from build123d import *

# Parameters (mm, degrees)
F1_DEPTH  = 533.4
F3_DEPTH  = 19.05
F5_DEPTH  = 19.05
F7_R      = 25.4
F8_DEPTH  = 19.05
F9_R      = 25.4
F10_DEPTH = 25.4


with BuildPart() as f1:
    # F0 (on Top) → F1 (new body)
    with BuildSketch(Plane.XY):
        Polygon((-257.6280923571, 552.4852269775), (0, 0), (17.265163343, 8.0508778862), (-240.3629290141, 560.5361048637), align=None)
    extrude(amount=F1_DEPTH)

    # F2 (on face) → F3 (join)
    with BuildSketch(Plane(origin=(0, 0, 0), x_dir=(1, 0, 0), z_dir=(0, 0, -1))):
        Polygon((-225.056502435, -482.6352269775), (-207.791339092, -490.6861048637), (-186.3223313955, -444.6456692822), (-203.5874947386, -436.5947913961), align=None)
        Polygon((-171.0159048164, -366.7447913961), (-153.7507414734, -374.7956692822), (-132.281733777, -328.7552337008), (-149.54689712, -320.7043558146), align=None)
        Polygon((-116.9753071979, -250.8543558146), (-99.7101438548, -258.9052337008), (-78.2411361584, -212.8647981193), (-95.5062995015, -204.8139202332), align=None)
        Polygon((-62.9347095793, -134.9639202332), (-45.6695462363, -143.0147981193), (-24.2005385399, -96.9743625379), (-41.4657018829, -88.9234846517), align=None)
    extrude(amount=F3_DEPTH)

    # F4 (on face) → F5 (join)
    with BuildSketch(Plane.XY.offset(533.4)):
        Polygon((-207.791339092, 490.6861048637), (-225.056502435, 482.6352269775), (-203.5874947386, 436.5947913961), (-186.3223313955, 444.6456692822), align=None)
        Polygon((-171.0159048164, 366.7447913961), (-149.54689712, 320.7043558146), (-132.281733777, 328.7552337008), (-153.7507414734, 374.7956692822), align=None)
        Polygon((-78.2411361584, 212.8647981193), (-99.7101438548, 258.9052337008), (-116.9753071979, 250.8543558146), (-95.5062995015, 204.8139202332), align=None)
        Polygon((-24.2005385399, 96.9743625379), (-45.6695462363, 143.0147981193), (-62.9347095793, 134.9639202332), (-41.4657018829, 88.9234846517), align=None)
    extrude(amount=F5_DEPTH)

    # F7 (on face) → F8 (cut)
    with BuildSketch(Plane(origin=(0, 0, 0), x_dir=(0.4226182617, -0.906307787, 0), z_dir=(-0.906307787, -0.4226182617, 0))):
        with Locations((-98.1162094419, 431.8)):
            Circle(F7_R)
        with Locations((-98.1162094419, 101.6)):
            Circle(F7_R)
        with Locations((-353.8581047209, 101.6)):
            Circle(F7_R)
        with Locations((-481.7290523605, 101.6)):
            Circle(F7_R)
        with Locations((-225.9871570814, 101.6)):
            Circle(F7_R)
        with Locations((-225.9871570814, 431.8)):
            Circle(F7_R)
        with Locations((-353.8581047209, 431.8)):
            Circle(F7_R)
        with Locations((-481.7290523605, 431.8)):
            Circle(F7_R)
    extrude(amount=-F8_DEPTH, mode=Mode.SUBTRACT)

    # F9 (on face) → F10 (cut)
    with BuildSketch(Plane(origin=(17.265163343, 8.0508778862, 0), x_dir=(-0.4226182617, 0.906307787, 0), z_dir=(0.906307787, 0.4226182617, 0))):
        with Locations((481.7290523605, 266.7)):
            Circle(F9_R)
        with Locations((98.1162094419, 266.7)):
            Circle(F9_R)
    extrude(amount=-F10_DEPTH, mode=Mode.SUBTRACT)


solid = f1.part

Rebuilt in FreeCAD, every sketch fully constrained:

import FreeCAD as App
import Part
import Sketcher

V = App.Vector
Q = App.Units.Quantity

doc = App.newDocument("Part")
body = doc.addObject("PartDesign::Body", "Body")

sketch1 = body.newObject("Sketcher::SketchObject", "Sketch")
sketch1.AttachmentSupport = (doc.getObject("XY_Plane"), [""])
sketch1.MapMode = "FlatFace"
sketch1.addGeometry([
    Part.LineSegment(V(-258, 552, 0), V(0, 0, 0)),
    Part.LineSegment(V(0, 0, 0), V(17, 8, 0)),
    Part.LineSegment(V(17, 8, 0), V(-240, 561, 0)),
    Part.LineSegment(V(-240, 561, 0), V(-258, 552, 0)),
], False)
sketch1.addConstraint([
    Sketcher.Constraint("Coincident", 0, 2, 1, 1),
    Sketcher.Constraint("Coincident", 1, 2, 2, 1),
    Sketcher.Constraint("Coincident", 2, 2, 3, 1),
    Sketcher.Constraint("Coincident", 3, 2, 0, 1),
    Sketcher.Constraint("Coincident", 0, 2, -1, 1),
    Sketcher.Constraint("Perpendicular", 0, 1),
    Sketcher.Constraint("Perpendicular", 1, 2),
    Sketcher.Constraint("Perpendicular", 2, 3),
    Sketcher.Constraint("Distance", 0, Q("24 in")),
    Sketcher.Constraint("Angle", 0, Q("-65 deg")),
    Sketcher.Constraint("Distance", 1, Q("0.75 in")),
])
pad1 = body.newObject("PartDesign::Pad", "Pad")
pad1.Profile = sketch1
pad1.Length = Q("21 in")

sketch2 = body.newObject("Sketcher::SketchObject", "Sketch001")
sketch2.AttachmentSupport = (doc.getObject("XY_Plane"), [""])
sketch2.MapMode = "FlatFace"
sketch2.addGeometry([
    Part.LineSegment(V(-225, 483, 0), V(-208, 491, 0)),
    Part.LineSegment(V(-208, 491, 0), V(-186, 445, 0)),
    Part.LineSegment(V(-186, 445, 0), V(-204, 437, 0)),
    Part.LineSegment(V(-204, 437, 0), V(-225, 483, 0)),
    Part.LineSegment(V(-171, 367, 0), V(-154, 375, 0)),
    Part.LineSegment(V(-154, 375, 0), V(-132, 329, 0)),
    Part.LineSegment(V(-132, 329, 0), V(-150, 321, 0)),
    Part.LineSegment(V(-150, 321, 0), V(-171, 367, 0)),
    Part.LineSegment(V(-117, 251, 0), V(-100, 259, 0)),
    Part.LineSegment(V(-100, 259, 0), V(-78, 213, 0)),
    Part.LineSegment(V(-78, 213, 0), V(-96, 205, 0)),
    Part.LineSegment(V(-96, 205, 0), V(-117, 251, 0)),
    Part.LineSegment(V(-63, 135, 0), V(-46, 143, 0)),
    Part.LineSegment(V(-46, 143, 0), V(-24, 97, 0)),
    Part.LineSegment(V(-24, 97, 0), V(-41, 89, 0)),
    Part.LineSegment(V(-41, 89, 0), V(-63, 135, 0)),
], False)
sketch2.addConstraint([
    Sketcher.Constraint("Coincident", 0, 2, 1, 1),
    Sketcher.Constraint("Coincident", 1, 2, 2, 1),
    Sketcher.Constraint("Coincident", 2, 2, 3, 1),
    Sketcher.Constraint("Coincident", 3, 2, 0, 1),
    Sketcher.Constraint("Coincident", 4, 2, 5, 1),
    Sketcher.Constraint("Coincident", 5, 2, 6, 1),
    Sketcher.Constraint("Coincident", 6, 2, 7, 1),
    Sketcher.Constraint("Coincident", 7, 2, 4, 1),
    Sketcher.Constraint("Coincident", 8, 2, 9, 1),
    Sketcher.Constraint("Coincident", 9, 2, 10, 1),
    Sketcher.Constraint("Coincident", 10, 2, 11, 1),
    Sketcher.Constraint("Coincident", 11, 2, 8, 1),
    Sketcher.Constraint("Coincident", 12, 2, 13, 1),
    Sketcher.Constraint("Coincident", 13, 2, 14, 1),
    Sketcher.Constraint("Coincident", 14, 2, 15, 1),
    Sketcher.Constraint("Coincident", 15, 2, 12, 1),
    Sketcher.Constraint("Perpendicular", 0, 1),
    Sketcher.Constraint("Perpendicular", 1, 2),
    Sketcher.Constraint("Perpendicular", 2, 3),
    Sketcher.Constraint("Perpendicular", 3, 4),
    Sketcher.Constraint("Perpendicular", 4, 5),
    Sketcher.Constraint("Perpendicular", 5, 6),
    Sketcher.Constraint("Perpendicular", 6, 7),
    Sketcher.Constraint("Perpendicular", 7, 8),
    Sketcher.Constraint("Perpendicular", 8, 9),
    Sketcher.Constraint("Perpendicular", 9, 10),
    Sketcher.Constraint("Perpendicular", 10, 11),
    Sketcher.Constraint("Perpendicular", 11, 12),
    Sketcher.Constraint("Perpendicular", 12, 13),
    Sketcher.Constraint("Perpendicular", 13, 14),
    Sketcher.Constraint("Perpendicular", 14, 15),
    Sketcher.Constraint("Equal", 2, 4),
    Sketcher.Constraint("Equal", 3, 5),
    Sketcher.Constraint("Equal", 6, 8),
    Sketcher.Constraint("Equal", 7, 9),
    Sketcher.Constraint("Equal", 10, 12),
    Sketcher.Constraint("Equal", 11, 13),
    Sketcher.Constraint("Distance", 1, Q("2 in")),
    Sketcher.Constraint("Angle", 0, Q("25 deg")),
    Sketcher.Constraint("Distance", 0, Q("0.75 in")),
    Sketcher.Constraint("DistanceY", 4, 2, 1, 2, Q("2.75 in")),
    Sketcher.Constraint("DistanceY", 8, 2, 5, 2, Q("2.75 in")),
    Sketcher.Constraint("DistanceY", 12, 2, 9, 2, Q("2.75 in")),
    Sketcher.Constraint("DistanceY", -1, 1, 9, 2, Q("212.864798 mm")),
    Sketcher.Constraint("DistanceX", 10, 2, -1, 1, Q("95.5063 mm")),
    Sketcher.Constraint("DistanceX", 14, 2, -1, 1, Q("41.465702 mm")),
    Sketcher.Constraint("DistanceX", 0, 2, -1, 1, Q("207.791339 mm")),
    Sketcher.Constraint("DistanceX", 4, 2, -1, 1, Q("153.750741 mm")),
])
pad2 = body.newObject("PartDesign::Pad", "Pad001")
pad2.Profile = sketch2
pad2.Length = Q("0.75 in")
pad2.Reversed = True

sketch3 = body.newObject("Sketcher::SketchObject", "Sketch002")
sketch3.AttachmentSupport = (doc.getObject("XY_Plane"), [""])
sketch3.MapMode = "FlatFace"
sketch3.AttachmentOffset = App.Placement(V(0, 0, 21 * 25.4), App.Rotation())
sketch3.addGeometry([
    Part.LineSegment(V(-208, 491, 0), V(-225, 483, 0)),
    Part.LineSegment(V(-225, 483, 0), V(-204, 437, 0)),
    Part.LineSegment(V(-204, 437, 0), V(-186, 445, 0)),
    Part.LineSegment(V(-186, 445, 0), V(-208, 491, 0)),
    Part.LineSegment(V(-171, 367, 0), V(-150, 321, 0)),
    Part.LineSegment(V(-150, 321, 0), V(-132, 329, 0)),
    Part.LineSegment(V(-132, 329, 0), V(-154, 375, 0)),
    Part.LineSegment(V(-154, 375, 0), V(-171, 367, 0)),
    Part.LineSegment(V(-78, 213, 0), V(-100, 259, 0)),
    Part.LineSegment(V(-100, 259, 0), V(-117, 251, 0)),
    Part.LineSegment(V(-117, 251, 0), V(-96, 205, 0)),
    Part.LineSegment(V(-96, 205, 0), V(-78, 213, 0)),
    Part.LineSegment(V(-24, 97, 0), V(-46, 143, 0)),
    Part.LineSegment(V(-46, 143, 0), V(-63, 135, 0)),
    Part.LineSegment(V(-63, 135, 0), V(-41, 89, 0)),
    Part.LineSegment(V(-41, 89, 0), V(-24, 97, 0)),
], False)
sketch3.addConstraint([
    Sketcher.Constraint("Coincident", 0, 2, 1, 1),
    Sketcher.Constraint("Coincident", 1, 2, 2, 1),
    Sketcher.Constraint("Coincident", 2, 2, 3, 1),
    Sketcher.Constraint("Coincident", 3, 2, 0, 1),
    Sketcher.Constraint("Coincident", 4, 2, 5, 1),
    Sketcher.Constraint("Coincident", 5, 2, 6, 1),
    Sketcher.Constraint("Coincident", 6, 2, 7, 1),
    Sketcher.Constraint("Coincident", 7, 2, 4, 1),
    Sketcher.Constraint("Coincident", 8, 2, 9, 1),
    Sketcher.Constraint("Coincident", 9, 2, 10, 1),
    Sketcher.Constraint("Coincident", 10, 2, 11, 1),
    Sketcher.Constraint("Coincident", 11, 2, 8, 1),
    Sketcher.Constraint("Coincident", 12, 2, 13, 1),
    Sketcher.Constraint("Coincident", 13, 2, 14, 1),
    Sketcher.Constraint("Coincident", 14, 2, 15, 1),
    Sketcher.Constraint("Coincident", 15, 2, 12, 1),
    Sketcher.Constraint("Perpendicular", 0, 1),
    Sketcher.Constraint("Perpendicular", 1, 2),
    Sketcher.Constraint("Perpendicular", 2, 3),
    Sketcher.Constraint("Parallel", 3, 4),
    Sketcher.Constraint("Perpendicular", 4, 5),
    Sketcher.Constraint("Perpendicular", 5, 6),
    Sketcher.Constraint("Perpendicular", 6, 7),
    Sketcher.Constraint("Perpendicular", 7, 8),
    Sketcher.Constraint("Perpendicular", 8, 9),
    Sketcher.Constraint("Perpendicular", 9, 10),
    Sketcher.Constraint("Perpendicular", 10, 11),
    Sketcher.Constraint("Perpendicular", 11, 12),
    Sketcher.Constraint("Perpendicular", 12, 13),
    Sketcher.Constraint("Perpendicular", 13, 14),
    Sketcher.Constraint("Perpendicular", 14, 15),
    Sketcher.Constraint("Equal", 3, 4),
    Sketcher.Constraint("Equal", 2, 5),
    Sketcher.Constraint("Equal", 6, 8),
    Sketcher.Constraint("Equal", 7, 9),
    Sketcher.Constraint("Equal", 10, 12),
    Sketcher.Constraint("Equal", 11, 13),
    Sketcher.Constraint("Distance", 1, Q("2 in")),
    Sketcher.Constraint("Angle", 0, Q("-155 deg")),
    Sketcher.Constraint("Distance", 0, Q("0.75 in")),
    Sketcher.Constraint("DistanceY", 6, 2, 2, 2, Q("2.75 in")),
    Sketcher.Constraint("DistanceY", 8, 2, 5, 2, Q("2.75 in")),
    Sketcher.Constraint("DistanceY", 12, 2, 11, 2, Q("2.75 in")),
    Sketcher.Constraint("DistanceX", 10, 2, -1, 1, Q("95.5063 mm")),
    Sketcher.Constraint("DistanceY", -1, 1, 11, 2, Q("212.864798 mm")),
    Sketcher.Constraint("DistanceX", 14, 2, -1, 1, Q("41.465702 mm")),
    Sketcher.Constraint("DistanceX", 2, 2, -1, 1, Q("186.322331 mm")),
    Sketcher.Constraint("DistanceX", 6, 2, -1, 1, Q("153.750741 mm")),
])
pad3 = body.newObject("PartDesign::Pad", "Pad002")
pad3.Profile = sketch3
pad3.Length = Q("0.75 in")

sketch4 = body.newObject("Sketcher::SketchObject", "Sketch003")
sketch4.Placement = App.Placement(V(0, 0, 0), App.Rotation(V(0.422618262, -0.906307787, 0), V(0, 0, 1), V(-0.906307787, -0.422618262, 0), "ZXY"))
sketch4.addGeometry([
    Part.Circle(V(-98, 432, 0), V(0, 0, 1), 25),
    Part.Circle(V(-98, 102, 0), V(0, 0, 1), 25),
    Part.Circle(V(-354, 102, 0), V(0, 0, 1), 25),
    Part.Circle(V(-482, 102, 0), V(0, 0, 1), 25),
    Part.Circle(V(-226, 102, 0), V(0, 0, 1), 25),
    Part.Circle(V(-226, 432, 0), V(0, 0, 1), 25),
    Part.Circle(V(-354, 432, 0), V(0, 0, 1), 25),
    Part.Circle(V(-482, 432, 0), V(0, 0, 1), 25),
], False)
sketch4.addConstraint([
    Sketcher.Constraint("Equal", 0, 1),
    Sketcher.Constraint("Equal", 1, 2),
    Sketcher.Constraint("Equal", 2, 3),
    Sketcher.Constraint("Equal", 3, 4),
    Sketcher.Constraint("Equal", 4, 5),
    Sketcher.Constraint("Equal", 5, 6),
    Sketcher.Constraint("Equal", 6, 7),
    Sketcher.Constraint("Horizontal", 1, 3, 2, 3),
    Sketcher.Constraint("Horizontal", 2, 3, 3, 3),
    Sketcher.Constraint("Horizontal", 3, 3, 4, 3),
    Sketcher.Constraint("Horizontal", 0, 3, 5, 3),
    Sketcher.Constraint("Horizontal", 5, 3, 6, 3),
    Sketcher.Constraint("Horizontal", 6, 3, 7, 3),
    Sketcher.Constraint("Vertical", 0, 3, 1, 3),
    Sketcher.Constraint("Vertical", 4, 3, 5, 3),
    Sketcher.Constraint("Vertical", 2, 3, 6, 3),
    Sketcher.Constraint("Vertical", 3, 3, 7, 3),
    Sketcher.Constraint("Diameter", 0, Q("2 in")),
    Sketcher.Constraint("DistanceY", -1, 1, 0, 3, Q("17 in")),
    Sketcher.Constraint("DistanceY", -1, 1, 1, 3, Q("4 in")),
    Sketcher.Constraint("DistanceX", 0, 3, -1, 1, Q("98.116209 mm")),
    Sketcher.Constraint("DistanceX", 2, 3, -1, 1, Q("353.858105 mm")),
    Sketcher.Constraint("DistanceX", 3, 3, -1, 1, Q("481.729052 mm")),
    Sketcher.Constraint("DistanceX", 4, 3, -1, 1, Q("225.987157 mm")),
])
pocket1 = body.newObject("PartDesign::Pocket", "Pocket")
pocket1.Profile = sketch4
pocket1.Length = Q("0.75 in")

sketch5 = body.newObject("Sketcher::SketchObject", "Sketch004")
sketch5.Placement = App.Placement(V(17.265163, 8.050878, 0), App.Rotation(V(-0.422618262, 0.906307787, 0), V(0, 0, 1), V(0.906307787, 0.422618262, 0), "ZXY"))
sketch5.addGeometry([
    Part.Circle(V(482, 267, 0), V(0, 0, 1), 25),
    Part.Circle(V(98, 267, 0), V(0, 0, 1), 25),
], False)
sketch5.addConstraint([
    Sketcher.Constraint("Equal", 0, 1),
    Sketcher.Constraint("Horizontal", 0, 3, 1, 3),
    Sketcher.Constraint("Diameter", 0, Q("2 in")),
    Sketcher.Constraint("DistanceY", -1, 1, 0, 3, Q("10.5 in")),
    Sketcher.Constraint("DistanceX", -1, 1, 1, 3, Q("98.116209 mm")),
    Sketcher.Constraint("DistanceX", -1, 1, 0, 3, Q("481.729052 mm")),
])
pocket2 = body.newObject("PartDesign::Pocket", "Pocket001")
pocket2.Profile = sketch5
pocket2.Length = Q("1 in")

doc.recompute()
